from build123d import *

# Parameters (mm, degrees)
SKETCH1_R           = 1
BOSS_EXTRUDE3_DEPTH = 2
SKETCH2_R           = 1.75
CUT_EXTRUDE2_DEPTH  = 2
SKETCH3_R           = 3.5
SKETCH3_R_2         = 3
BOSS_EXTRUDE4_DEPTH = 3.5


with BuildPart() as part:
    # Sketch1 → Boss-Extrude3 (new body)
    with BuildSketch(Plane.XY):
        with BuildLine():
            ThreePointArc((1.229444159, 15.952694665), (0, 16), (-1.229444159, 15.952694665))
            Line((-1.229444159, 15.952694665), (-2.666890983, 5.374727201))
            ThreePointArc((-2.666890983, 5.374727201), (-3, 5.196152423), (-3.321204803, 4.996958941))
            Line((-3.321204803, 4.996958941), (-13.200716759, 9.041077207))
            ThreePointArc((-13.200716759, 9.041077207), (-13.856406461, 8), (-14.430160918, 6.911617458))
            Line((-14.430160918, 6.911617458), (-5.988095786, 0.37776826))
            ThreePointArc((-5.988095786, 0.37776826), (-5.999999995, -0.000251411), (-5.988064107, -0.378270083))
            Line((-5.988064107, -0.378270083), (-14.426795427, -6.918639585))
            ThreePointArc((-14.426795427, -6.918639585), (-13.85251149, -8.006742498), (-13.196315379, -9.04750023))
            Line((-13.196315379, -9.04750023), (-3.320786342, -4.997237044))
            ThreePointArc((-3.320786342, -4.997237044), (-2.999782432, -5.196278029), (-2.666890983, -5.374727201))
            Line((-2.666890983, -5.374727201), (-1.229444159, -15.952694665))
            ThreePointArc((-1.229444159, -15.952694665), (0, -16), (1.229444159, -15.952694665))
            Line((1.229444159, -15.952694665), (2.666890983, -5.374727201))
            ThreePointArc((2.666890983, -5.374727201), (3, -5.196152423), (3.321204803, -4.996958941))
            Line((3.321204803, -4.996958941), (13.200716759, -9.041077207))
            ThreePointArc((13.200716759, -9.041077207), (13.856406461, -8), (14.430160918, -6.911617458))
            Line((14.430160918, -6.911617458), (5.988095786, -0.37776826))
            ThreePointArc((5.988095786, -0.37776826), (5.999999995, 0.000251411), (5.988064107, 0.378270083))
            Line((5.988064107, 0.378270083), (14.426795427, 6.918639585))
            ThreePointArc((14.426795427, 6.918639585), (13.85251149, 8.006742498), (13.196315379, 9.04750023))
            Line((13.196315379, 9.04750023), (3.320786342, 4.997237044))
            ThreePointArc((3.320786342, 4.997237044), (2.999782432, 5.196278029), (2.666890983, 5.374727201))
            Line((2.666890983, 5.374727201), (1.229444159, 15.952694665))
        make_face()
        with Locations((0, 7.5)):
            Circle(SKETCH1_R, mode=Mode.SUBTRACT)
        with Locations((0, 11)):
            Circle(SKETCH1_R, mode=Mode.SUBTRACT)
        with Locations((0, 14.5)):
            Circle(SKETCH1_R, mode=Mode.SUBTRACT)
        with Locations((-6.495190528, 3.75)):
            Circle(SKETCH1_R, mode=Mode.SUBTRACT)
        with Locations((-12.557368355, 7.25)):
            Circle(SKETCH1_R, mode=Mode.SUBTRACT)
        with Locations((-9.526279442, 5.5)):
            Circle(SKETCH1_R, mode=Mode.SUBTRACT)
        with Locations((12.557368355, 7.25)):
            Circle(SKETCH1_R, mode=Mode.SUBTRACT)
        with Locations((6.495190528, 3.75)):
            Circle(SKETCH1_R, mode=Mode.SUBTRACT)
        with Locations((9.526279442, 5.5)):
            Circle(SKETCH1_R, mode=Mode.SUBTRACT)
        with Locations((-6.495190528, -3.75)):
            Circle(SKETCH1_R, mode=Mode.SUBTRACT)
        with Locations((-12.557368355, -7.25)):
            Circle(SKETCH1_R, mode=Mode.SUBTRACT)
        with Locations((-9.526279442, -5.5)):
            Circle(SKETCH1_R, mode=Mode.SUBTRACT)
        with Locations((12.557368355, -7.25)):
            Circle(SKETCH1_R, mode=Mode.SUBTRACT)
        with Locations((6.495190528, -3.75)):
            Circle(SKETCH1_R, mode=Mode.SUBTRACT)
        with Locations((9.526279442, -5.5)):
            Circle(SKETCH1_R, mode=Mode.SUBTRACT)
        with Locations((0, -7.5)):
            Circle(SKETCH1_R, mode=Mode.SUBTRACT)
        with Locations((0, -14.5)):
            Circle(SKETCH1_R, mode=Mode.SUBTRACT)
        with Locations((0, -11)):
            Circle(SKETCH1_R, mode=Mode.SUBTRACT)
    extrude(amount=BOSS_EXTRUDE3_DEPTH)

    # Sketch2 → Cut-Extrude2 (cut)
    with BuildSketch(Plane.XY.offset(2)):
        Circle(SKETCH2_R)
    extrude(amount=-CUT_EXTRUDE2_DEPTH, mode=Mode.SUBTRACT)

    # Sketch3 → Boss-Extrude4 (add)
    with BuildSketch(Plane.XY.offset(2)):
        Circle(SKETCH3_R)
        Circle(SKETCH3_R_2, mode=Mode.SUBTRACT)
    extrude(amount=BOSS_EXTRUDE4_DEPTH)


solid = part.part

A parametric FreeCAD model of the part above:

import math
import FreeCAD as App
import Part
import Sketcher

V = App.Vector

doc = App.newDocument("Part")
params = doc.addObject("Spreadsheet::Sheet", "Params")
for row, (alias, value) in enumerate([
    ("sketch1_diameter", "2 mm"),
    ("sketch1_radius", "16 mm"),
    ("sketch1_radius2", "6 mm"),
    ("pad1_length", "2 mm"),
    ("sketch2_diameter", "3.5 mm"),
    ("pocket1_length", "2 mm"),
    ("sketch3_diameter", "7 mm"),
    ("sketch3_diameter2", "6 mm"),
    ("pad2_length", "3.5 mm"),
], start=1):
    params.set(f"A{row}", alias)
    params.set(f"B{row}", "=" + value)
    params.setAlias(f"B{row}", alias)

body = doc.addObject("PartDesign::Body", "Body")

# Sketch on XY plane
sketch1 = body.newObject("Sketcher::SketchObject", "Sketch")
sketch1.AttachmentSupport = (doc.getObject("XY_Plane"), [""])
sketch1.MapMode = "FlatFace"
sketch1.addGeometry(Part.ArcOfCircle(Part.Circle(V(0, 0, 0), V(0, 0, 1), 16), math.radians(85.59), math.radians(94.41)), False)
sketch1.addGeometry(Part.LineSegment(V(-1.2, 16, 0), V(-2.7, 5.4, 0)), False)
sketch1.addGeometry(Part.ArcOfCircle(Part.Circle(V(0, 0, 0), V(0, 0, 1), 6), math.radians(116.39), math.radians(123.61)), False)
sketch1.addGeometry(Part.LineSegment(V(-3.3, 5, 0), V(-13.2, 9, 0)), False)
sketch1.addGeometry(Part.ArcOfCircle(Part.Circle(V(0, 0, 0), V(0, 0, 1), 16), math.radians(145.59), math.radians(154.41)), False)
sketch1.addGeometry(Part.LineSegment(V(-14.4, 6.9, 0), V(-6, 0.4, 0)), False)
sketch1.addGeometry(Part.ArcOfCircle(Part.Circle(V(0, 0, 0), V(0, 0, 1), 6), math.radians(176.39), math.radians(183.61)), False)
sketch1.addGeometry(Part.LineSegment(V(-6, -0.4, 0), V(-14.4, -6.9, 0)), False)
sketch1.addGeometry(Part.ArcOfCircle(Part.Circle(V(0, 0, 0), V(0, 0, 1), 16), math.radians(-154.38), math.radians(-145.57)), False)
sketch1.addGeometry(Part.LineSegment(V(-13.2, -9, 0), V(-3.3, -5, 0)), False)
sketch1.addGeometry(Part.ArcOfCircle(Part.Circle(V(0, 0, 0), V(0, 0, 1), 6), math.radians(-123.61), math.radians(-116.39)), False)
sketch1.addGeometry(Part.LineSegment(V(-2.7, -5.4, 0), V(-1.2, -16, 0)), False)
sketch1.addGeometry(Part.ArcOfCircle(Part.Circle(V(0, 0, 0), V(0, 0, 1), 16), math.radians(-94.41), math.radians(-85.59)), False)
sketch1.addGeometry(Part.LineSegment(V(1.2, -16, 0), V(2.7, -5.4, 0)), False)
sketch1.addGeometry(Part.ArcOfCircle(Part.Circle(V(0, 0, 0), V(0, 0, 1), 6), math.radians(-63.61), math.radians(-56.39)), False)
sketch1.addGeometry(Part.LineSegment(V(3.3, -5, 0), V(13.2, -9, 0)), False)
sketch1.addGeometry(Part.ArcOfCircle(Part.Circle(V(0, 0, 0), V(0, 0, 1), 16), math.radians(-34.41), math.radians(-25.59)), False)
sketch1.addGeometry(Part.LineSegment(V(14.4, -6.9, 0), V(6, -0.4, 0)), False)
sketch1.addGeometry(Part.ArcOfCircle(Part.Circle(V(0, 0, 0), V(0, 0, 1), 6), math.radians(-3.61), math.radians(3.61)), False)
sketch1.addGeometry(Part.LineSegment(V(6, 0.4, 0), V(14.4, 6.9, 0)), False)
sketch1.addGeometry(Part.ArcOfCircle(Part.Circle(V(0, 0, 0), V(0, 0, 1), 16), math.radians(25.62), math.radians(34.43)), False)
sketch1.addGeometry(Part.LineSegment(V(13.2, 9, 0), V(3.3, 5, 0)), False)
sketch1.addGeometry(Part.ArcOfCircle(Part.Circle(V(0, 0, 0), V(0, 0, 1), 6), math.radians(56.39), math.radians(63.61)), False)
sketch1.addGeometry(Part.LineSegment(V(2.7, 5.4, 0), V(1.2, 16, 0)), False)
sketch1.addGeometry(Part.Circle(V(-12.6, -7.2, 0), V(0, 0, 1), 1), False)
sketch1.addGeometry(Part.Circle(V(-9.5, -5.5, 0), V(0, 0, 1), 1), False)
sketch1.addGeometry(Part.Circle(V(-6.5, -3.8, 0), V(0, 0, 1), 1), False)
sketch1.addGeometry(Part.Circle(V(0, -14.5, 0), V(0, 0, 1), 1), False)
sketch1.addGeometry(Part.Circle(V(0, -11, 0), V(0, 0, 1), 1), False)
sketch1.addGeometry(Part.Circle(V(0, -7.5, 0), V(0, 0, 1), 1), False)
sketch1.addGeometry(Part.Circle(V(6.5, -3.8, 0), V(0, 0, 1), 1), False)
sketch1.addGeometry(Part.Circle(V(9.5, -5.5, 0), V(0, 0, 1), 1), False)
sketch1.addGeometry(Part.Circle(V(12.6, -7.2, 0), V(0, 0, 1), 1), False)
sketch1.addGeometry(Part.Circle(V(-12.6, 7.2, 0), V(0, 0, 1), 1), False)
sketch1.addGeometry(Part.Circle(V(-9.5, 5.5, 0), V(0, 0, 1), 1), False)
sketch1.addGeometry(Part.Circle(V(-6.5, 3.8, 0), V(0, 0, 1), 1), False)
sketch1.addGeometry(Part.Circle(V(6.5, 3.8, 0), V(0, 0, 1), 1), False)
sketch1.addGeometry(Part.Circle(V(0, 7.5, 0), V(0, 0, 1), 1), False)
sketch1.addGeometry(Part.Circle(V(9.5, 5.5, 0), V(0, 0, 1), 1), False)
sketch1.addGeometry(Part.Circle(V(12.6, 7.2, 0), V(0, 0, 1), 1), False)
sketch1.addGeometry(Part.Circle(V(0, 11, 0), V(0, 0, 1), 1), False)
sketch1.addGeometry(Part.Circle(V(0, 14.5, 0), V(0, 0, 1), 1), False)
sketch1.addConstraint(Sketcher.Constraint("Coincident", 0, 2, 1, 1))
sketch1.addConstraint(Sketcher.Constraint("Coincident", 1, 2, 2, 1))
sketch1.addConstraint(Sketcher.Constraint("Coincident", 2, 2, 3, 1))
sketch1.addConstraint(Sketcher.Constraint("Coincident", 3, 2, 4, 1))
sketch1.addConstraint(Sketcher.Constraint("Coincident", 4, 2, 5, 1))
sketch1.addConstraint(Sketcher.Constraint("Coincident", 5, 2, 6, 1))
sketch1.addConstraint(Sketcher.Constraint("Coincident", 6, 2, 7, 1))
sketch1.addConstraint(Sketcher.Constraint("Coincident", 7, 2, 8, 1))
sketch1.addConstraint(Sketcher.Constraint("Coincident", 8, 2, 9, 1))
sketch1.addConstraint(Sketcher.Constraint("Coincident", 9, 2, 10, 1))
sketch1.addConstraint(Sketcher.Constraint("Coincident", 10, 2, 11, 1))
sketch1.addConstraint(Sketcher.Constraint("Coincident", 11, 2, 12, 1))
sketch1.addConstraint(Sketcher.Constraint("Coincident", 12, 2, 13, 1))
sketch1.addConstraint(Sketcher.Constraint("Coincident", 13, 2, 14, 1))
sketch1.addConstraint(Sketcher.Constraint("Coincident", 14, 2, 15, 1))
sketch1.addConstraint(Sketcher.Constraint("Coincident", 15, 2, 16, 1))
sketch1.addConstraint(Sketcher.Constraint("Coincident", 16, 2, 17, 1))
sketch1.addConstraint(Sketcher.Constraint("Coincident", 17, 2, 18, 1))
sketch1.addConstraint(Sketcher.Constraint("Coincident", 18, 2, 19, 1))
sketch1.addConstraint(Sketcher.Constraint("Coincident", 19, 2, 20, 1))
sketch1.addConstraint(Sketcher.Constraint("Coincident", 20, 2, 21, 1))
sketch1.addConstraint(Sketcher.Constraint("Coincident", 21, 2, 22, 1))
sketch1.addConstraint(Sketcher.Constraint("Coincident", 22, 2, 23, 1))
sketch1.addConstraint(Sketcher.Constraint("Coincident", 23, 2, 0, 1))
sketch1.addConstraint(Sketcher.Constraint("Coincident", 0, 3, -1, 1))
sketch1.addConstraint(Sketcher.Constraint("Coincident", 2, 3, -1, 1))
sketch1.addConstraint(Sketcher.Constraint("Coincident", 4, 3, -1, 1))
sketch1.addConstraint(Sketcher.Constraint("Coincident", 6, 3, -1, 1))
sketch1.addConstraint(Sketcher.Constraint("Coincident", 8, 3, -1, 1))
sketch1.addConstraint(Sketcher.Constraint("Coincident", 10, 3, -1, 1))
sketch1.addConstraint(Sketcher.Constraint("Coincident", 12, 3, -1, 1))
sketch1.addConstraint(Sketcher.Constraint("Coincident", 14, 3, -1, 1))
sketch1.addConstraint(Sketcher.Constraint("Coincident", 16, 3, -1, 1))
sketch1.addConstraint(Sketcher.Constraint("Coincident", 18, 3, -1, 1))
sketch1.addConstraint(Sketcher.Constraint("Coincident", 20, 3, -1, 1))
sketch1.addConstraint(Sketcher.Constraint("Coincident", 22, 3, -1, 1))
sketch1.addConstraint(Sketcher.Constraint("Equal", 0, 4))
sketch1.addConstraint(Sketcher.Constraint("Equal", 2, 6))
sketch1.addConstraint(Sketcher.Constraint("Equal", 4, 8))
sketch1.addConstraint(Sketcher.Constraint("Equal", 6, 10))
sketch1.addConstraint(Sketcher.Constraint("Equal", 8, 12))
sketch1.addConstraint(Sketcher.Constraint("Equal", 10, 14))
sketch1.addConstraint(Sketcher.Constraint("Equal", 12, 16))
sketch1.addConstraint(Sketcher.Constraint("Equal", 14, 18))
sketch1.addConstraint(Sketcher.Constraint("Equal", 16, 20))
sketch1.addConstraint(Sketcher.Constraint("Equal", 18, 22))
sketch1.addConstraint(Sketcher.Constraint("Equal", 24, 25))
sketch1.addConstraint(Sketcher.Constraint("Equal", 25, 26))
sketch1.addConstraint(Sketcher.Constraint("Equal", 26, 27))
sketch1.addConstraint(Sketcher.Constraint("Equal", 27, 28))
sketch1.addConstraint(Sketcher.Constraint("Equal", 28, 29))
sketch1.addConstraint(Sketcher.Constraint("Equal", 29, 30))
sketch1.addConstraint(Sketcher.Constraint("Equal", 30, 31))
sketch1.addConstraint(Sketcher.Constraint("Equal", 31, 32))
sketch1.addConstraint(Sketcher.Constraint("Equal", 32, 33))
sketch1.addConstraint(Sketcher.Constraint("Equal", 33, 34))
sketch1.addConstraint(Sketcher.Constraint("Equal", 34, 35))
sketch1.addConstraint(Sketcher.Constraint("Equal", 35, 36))
sketch1.addConstraint(Sketcher.Constraint("Equal", 36, 37))
sketch1.addConstraint(Sketcher.Constraint("Equal", 37, 38))
sketch1.addConstraint(Sketcher.Constraint("Equal", 38, 39))
sketch1.addConstraint(Sketcher.Constraint("Equal", 39, 40))
sketch1.addConstraint(Sketcher.Constraint("Equal", 40, 41))
sketch1.addConstraint(Sketcher.Constraint("Symmetric", 32, 3, 33, 3, -1, 1))
sketch1.addConstraint(Sketcher.Constraint("Symmetric", 31, 3, 34, 3, -1, 1))
sketch1.addConstraint(Sketcher.Constraint("Symmetric", 30, 3, 35, 3, -1, 1))
sketch1.addConstraint(Sketcher.Constraint("Symmetric", 26, 3, 36, 3, -1, 1))
sketch1.addConstraint(Sketcher.Constraint("Symmetric", 29, 3, 37, 3, -1, 1))
sketch1.addConstraint(Sketcher.Constraint("Symmetric", 25, 3, 38, 3, -1, 1))
sketch1.addConstraint(Sketcher.Constraint("Symmetric", 24, 3, 39, 3, -1, 1))
sketch1.addConstraint(Sketcher.Constraint("Symmetric", 28, 3, 40, 3, -1, 1))
sketch1.addConstraint(Sketcher.Constraint("Symmetric", 27, 3, 41, 3, -1, 1))
sketch1.addConstraint(Sketcher.Constraint("Symmetric", 26, 3, 30, 3, -2))
sketch1.addConstraint(Sketcher.Constraint("Symmetric", 25, 3, 31, 3, -2))
sketch1.addConstraint(Sketcher.Constraint("Symmetric", 24, 3, 32, 3, -2))
sketch1.addConstraint(Sketcher.Constraint("PointOnObject", 27, 3, -2))
sketch1.addConstraint(Sketcher.Constraint("PointOnObject", 28, 3, -2))
sketch1.addConstraint(Sketcher.Constraint("PointOnObject", 29, 3, -2))
sketch1.addConstraint(Sketcher.Constraint("Parallel", 1, 13))
sketch1.addConstraint(Sketcher.Constraint("Parallel", 3, 15))
sketch1.addConstraint(Sketcher.Constraint("Parallel", 5, 17))
sketch1.addConstraint(Sketcher.Constraint("Parallel", 7, 19))
sketch1.addConstraint(Sketcher.Constraint("Parallel", 9, 21))
sketch1.addConstraint(Sketcher.Constraint("Parallel", 11, 23))
sketch1.addConstraint(Sketcher.Constraint("Horizontal", 11, 2, 12, 2))
sketch1.addConstraint(Sketcher.Constraint("Horizontal", 10, 2, 13, 2))
sketch1.addConstraint(Sketcher.Constraint("Horizontal", 1, 2, 22, 2))
sketch1.addConstraint(Sketcher.Constraint("Vertical", 1, 2, 10, 2))
sketch1.addConstraint(Sketcher.Constraint("Equal", 1, 3))
sketch1.addConstraint(Sketcher.Constraint("Equal", 3, 5))
sketch1.addConstraint(Sketcher.Constraint("Equal", 13, 15))
sketch1.addConstraint(Sketcher.Constraint("Equal", 15, 17))
sketch1.addConstraint(Sketcher.Constraint("Equal", 7, 19))
sketch1.addConstraint(Sketcher.Constraint("Equal", 9, 21))
sketch1.addConstraint(Sketcher.Constraint("Diameter", 24, 2.0))
sketch1.addConstraint(Sketcher.Constraint("Radius", 0, 16.0))
sketch1.addConstraint(Sketcher.Constraint("Radius", 2, 6.0))
sketch1.addConstraint(Sketcher.Constraint("DistanceY", 28, 3, -1, 1, 11.0))
sketch1.addConstraint(Sketcher.Constraint("DistanceY", 27, 3, 25, 3, 9.0))
sketch1.addConstraint(Sketcher.Constraint("DistanceY", 27, 3, 29, 3, 7.0))
sketch1.addConstraint(Sketcher.Constraint("DistanceY", 26, 3, 33, 3, 11.0))
sketch1.addConstraint(Sketcher.Constraint("DistanceY", 25, 3, -1, 1, 5.5))
sketch1.addConstraint(Sketcher.Constraint("DistanceY", 24, 3, 26, 3, 3.5))
sketch1.addConstraint(Sketcher.Constraint("DistanceY", 8, 2, -1, 1, 9.0475))
sketch1.addConstraint(Sketcher.Constraint("DistanceX", 35, 3, 1, 2, 3.8283))
sketch1.addConstraint(Sketcher.Constraint("DistanceX", 7, 2, 5, 2, 8.4387))
sketch1.addConstraint(Sketcher.Constraint("Distance", 1, 10.675188))
sketch1.addConstraint(Sketcher.Constraint("DistanceX", 24, 3, -1, 1, 12.557368))
sketch1.addConstraint(Sketcher.Constraint("DistanceX", 25, 3, -1, 1, 9.526279))
sketch1.addConstraint(Sketcher.Constraint("DistanceX", 26, 3, -1, 1, 6.495191))
sketch1.addConstraint(Sketcher.Constraint("DistanceY", -1, 1, 2, 2, 4.996959))
sketch1.addConstraint(Sketcher.Constraint("DistanceX", 4, 2, -1, 1, 14.430161))
sketch1.addConstraint(Sketcher.Constraint("DistanceY", 6, 2, -1, 1, 0.37827))
sketch1.addConstraint(Sketcher.Constraint("DistanceY", 10, 2, 9, 2, 0.37749))
sketch1.setExpression("Constraints[94]", "Params.sketch1_diameter")
sketch1.setExpression("Constraints[95]", "Params.sketch1_radius")
sketch1.setExpression("Constraints[96]", "Params.sketch1_radius2")
pad1 = body.newObject("PartDesign::Pad", "Pad")
pad1.Profile = sketch1
pad1.setExpression("Length", "Params.pad1_length")

# Sketch on XY plane
sketch2 = body.newObject("Sketcher::SketchObject", "Sketch001")
sketch2.AttachmentSupport = (doc.getObject("XY_Plane"), [""])
sketch2.MapMode = "FlatFace"
sketch2.AttachmentOffset = App.Placement(V(0, 0, 2), App.Rotation())
sketch2.addGeometry(Part.Circle(V(0, 0, 0), V(0, 0, 1), 1.8), False)
sketch2.addConstraint(Sketcher.Constraint("Coincident", 0, 3, -1, 1))
sketch2.addConstraint(Sketcher.Constraint("Diameter", 0, 3.5))
sketch2.setExpression("Constraints[1]", "Params.sketch2_diameter")
pocket1 = body.newObject("PartDesign::Pocket", "Pocket")
pocket1.Profile = sketch2
pocket1.setExpression("Length", "Params.pocket1_length")

# Sketch on XY plane
sketch3 = body.newObject("Sketcher::SketchObject", "Sketch002")
sketch3.AttachmentSupport = (doc.getObject("XY_Plane"), [""])
sketch3.MapMode = "FlatFace"
sketch3.AttachmentOffset = App.Placement(V(0, 0, 2), App.Rotation())
sketch3.addGeometry(Part.Circle(V(0, 0, 0), V(0, 0, 1), 3.5), False)
sketch3.addGeometry(Part.Circle(V(0, 0, 0), V(0, 0, 1), 3), False)
sketch3.addConstraint(Sketcher.Constraint("Coincident", 0, 3, -1, 1))
sketch3.addConstraint(Sketcher.Constraint("Coincident", 1, 3, -1, 1))
sketch3.addConstraint(Sketcher.Constraint("Diameter", 0, 7.0))
sketch3.addConstraint(Sketcher.Constraint("Diameter", 1, 6.0))
sketch3.setExpression("Constraints[2]", "Params.sketch3_diameter")
sketch3.setExpression("Constraints[3]", "Params.sketch3_diameter2")
pad2 = body.newObject("PartDesign::Pad", "Pad001")
pad2.Profile = sketch3
pad2.setExpression("Length", "Params.pad2_length")

doc.recompute()
